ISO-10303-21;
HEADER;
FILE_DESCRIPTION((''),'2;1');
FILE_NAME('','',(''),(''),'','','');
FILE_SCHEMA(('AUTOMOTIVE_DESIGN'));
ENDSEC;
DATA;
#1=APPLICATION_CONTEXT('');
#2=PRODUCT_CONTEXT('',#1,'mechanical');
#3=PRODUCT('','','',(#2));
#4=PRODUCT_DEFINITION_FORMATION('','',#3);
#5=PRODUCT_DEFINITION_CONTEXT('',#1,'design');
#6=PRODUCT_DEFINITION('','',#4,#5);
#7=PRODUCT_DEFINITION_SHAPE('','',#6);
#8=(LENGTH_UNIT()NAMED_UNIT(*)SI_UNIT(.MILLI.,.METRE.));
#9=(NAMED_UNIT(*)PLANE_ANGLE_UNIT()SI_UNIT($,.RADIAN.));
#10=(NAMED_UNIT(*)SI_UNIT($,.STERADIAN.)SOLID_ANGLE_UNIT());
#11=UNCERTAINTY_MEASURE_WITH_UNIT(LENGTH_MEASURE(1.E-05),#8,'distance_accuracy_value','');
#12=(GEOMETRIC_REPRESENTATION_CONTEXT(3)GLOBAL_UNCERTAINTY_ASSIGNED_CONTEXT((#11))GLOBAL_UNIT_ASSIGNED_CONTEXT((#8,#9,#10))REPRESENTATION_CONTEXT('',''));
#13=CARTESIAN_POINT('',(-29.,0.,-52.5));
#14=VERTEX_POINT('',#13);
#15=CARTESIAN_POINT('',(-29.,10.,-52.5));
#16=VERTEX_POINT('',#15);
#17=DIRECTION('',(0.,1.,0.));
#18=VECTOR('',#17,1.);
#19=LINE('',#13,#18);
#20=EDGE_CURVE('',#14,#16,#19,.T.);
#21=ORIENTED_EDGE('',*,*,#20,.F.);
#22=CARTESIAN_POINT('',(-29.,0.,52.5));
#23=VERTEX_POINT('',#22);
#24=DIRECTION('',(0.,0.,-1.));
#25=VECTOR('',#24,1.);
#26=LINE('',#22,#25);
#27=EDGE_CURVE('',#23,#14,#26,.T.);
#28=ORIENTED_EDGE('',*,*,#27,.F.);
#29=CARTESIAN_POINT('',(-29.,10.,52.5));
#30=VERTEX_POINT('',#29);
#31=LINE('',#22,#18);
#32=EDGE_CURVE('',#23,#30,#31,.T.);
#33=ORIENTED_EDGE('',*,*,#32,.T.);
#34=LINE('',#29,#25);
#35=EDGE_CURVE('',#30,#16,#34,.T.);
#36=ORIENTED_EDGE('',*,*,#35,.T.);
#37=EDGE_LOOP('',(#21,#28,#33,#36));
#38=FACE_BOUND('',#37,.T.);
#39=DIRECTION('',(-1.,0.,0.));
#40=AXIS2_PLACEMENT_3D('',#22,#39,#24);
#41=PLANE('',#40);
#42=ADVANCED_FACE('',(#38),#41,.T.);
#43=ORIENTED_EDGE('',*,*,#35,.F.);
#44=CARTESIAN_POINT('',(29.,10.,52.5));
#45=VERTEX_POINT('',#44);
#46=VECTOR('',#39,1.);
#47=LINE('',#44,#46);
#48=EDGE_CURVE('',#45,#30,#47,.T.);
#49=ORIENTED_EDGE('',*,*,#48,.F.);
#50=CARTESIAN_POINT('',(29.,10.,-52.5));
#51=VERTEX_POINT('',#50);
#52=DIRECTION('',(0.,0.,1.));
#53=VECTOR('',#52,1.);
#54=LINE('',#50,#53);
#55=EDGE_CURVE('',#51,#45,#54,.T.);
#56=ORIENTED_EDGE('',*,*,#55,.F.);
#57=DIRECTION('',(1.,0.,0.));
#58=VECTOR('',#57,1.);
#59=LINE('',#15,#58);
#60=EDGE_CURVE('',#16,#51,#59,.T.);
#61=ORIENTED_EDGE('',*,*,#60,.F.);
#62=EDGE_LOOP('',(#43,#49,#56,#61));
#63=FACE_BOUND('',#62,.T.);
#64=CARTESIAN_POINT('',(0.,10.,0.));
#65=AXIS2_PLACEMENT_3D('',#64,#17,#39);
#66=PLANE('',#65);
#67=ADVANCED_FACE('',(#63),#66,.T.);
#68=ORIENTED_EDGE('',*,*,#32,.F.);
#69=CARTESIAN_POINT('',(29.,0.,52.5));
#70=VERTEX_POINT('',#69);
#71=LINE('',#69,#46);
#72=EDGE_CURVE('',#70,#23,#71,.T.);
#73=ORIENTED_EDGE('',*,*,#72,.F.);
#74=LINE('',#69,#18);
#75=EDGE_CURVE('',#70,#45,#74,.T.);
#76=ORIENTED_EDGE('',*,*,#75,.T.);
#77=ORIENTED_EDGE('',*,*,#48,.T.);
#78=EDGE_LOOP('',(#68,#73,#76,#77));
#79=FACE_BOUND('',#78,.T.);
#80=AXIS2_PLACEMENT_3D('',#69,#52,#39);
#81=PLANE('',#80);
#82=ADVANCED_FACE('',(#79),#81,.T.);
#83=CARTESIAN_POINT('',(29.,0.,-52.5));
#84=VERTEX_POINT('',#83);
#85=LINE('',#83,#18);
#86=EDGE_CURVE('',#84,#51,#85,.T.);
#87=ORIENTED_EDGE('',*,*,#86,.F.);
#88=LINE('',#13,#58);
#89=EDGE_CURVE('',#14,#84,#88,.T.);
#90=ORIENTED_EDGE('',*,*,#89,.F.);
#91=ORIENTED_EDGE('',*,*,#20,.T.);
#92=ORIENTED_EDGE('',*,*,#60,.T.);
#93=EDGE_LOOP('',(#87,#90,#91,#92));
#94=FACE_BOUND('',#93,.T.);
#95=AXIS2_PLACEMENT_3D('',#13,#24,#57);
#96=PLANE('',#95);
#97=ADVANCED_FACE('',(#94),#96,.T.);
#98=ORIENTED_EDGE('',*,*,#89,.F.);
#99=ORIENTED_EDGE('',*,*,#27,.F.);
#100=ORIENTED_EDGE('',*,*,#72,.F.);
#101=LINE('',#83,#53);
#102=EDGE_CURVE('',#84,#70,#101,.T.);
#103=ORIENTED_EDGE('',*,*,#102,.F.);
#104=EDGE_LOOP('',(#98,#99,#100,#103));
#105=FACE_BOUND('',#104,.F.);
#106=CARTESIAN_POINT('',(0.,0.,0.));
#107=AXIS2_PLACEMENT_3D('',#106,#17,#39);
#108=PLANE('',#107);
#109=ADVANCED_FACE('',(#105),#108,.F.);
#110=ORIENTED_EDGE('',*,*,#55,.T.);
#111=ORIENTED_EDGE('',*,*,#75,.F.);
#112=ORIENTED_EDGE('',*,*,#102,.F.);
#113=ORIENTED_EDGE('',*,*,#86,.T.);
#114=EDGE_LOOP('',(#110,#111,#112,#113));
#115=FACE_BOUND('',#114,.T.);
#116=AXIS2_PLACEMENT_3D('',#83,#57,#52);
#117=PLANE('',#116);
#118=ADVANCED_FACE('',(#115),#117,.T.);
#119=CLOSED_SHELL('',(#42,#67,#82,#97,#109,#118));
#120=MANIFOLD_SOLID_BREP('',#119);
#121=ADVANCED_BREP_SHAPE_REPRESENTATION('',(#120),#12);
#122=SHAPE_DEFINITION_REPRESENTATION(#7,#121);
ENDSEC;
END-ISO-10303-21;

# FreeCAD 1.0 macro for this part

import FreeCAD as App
import Part
import Sketcher
Q = App.Units.Quantity


def add_polygon(sketch, points):
    """Adds a closed chain of lines whose ends are joined by coincident constraints."""
    first, n = sketch.GeometryCount, len(points)
    for a, b in zip(points, points[1:] + points[:1]):
        sketch.addGeometry(Part.LineSegment(App.Vector(*a, 0), App.Vector(*b, 0)), False)
    for i in range(n):
        sketch.addConstraint(Sketcher.Constraint("Coincident", first + i, 2, first + (i + 1) % n, 1))

doc = App.newDocument("Part")
body = doc.addObject("PartDesign::Body", "Body")

sketch1 = body.newObject("Sketcher::SketchObject", "Sketch")
sketch1.AttachmentSupport = (doc.getObject("XZ_Plane"), [""])
sketch1.MapMode = "FlatFace"
add_polygon(sketch1, [(-29, 52), (29, 52), (29, -52), (-29, -52)])
sketch1.addConstraint([
    Sketcher.Constraint("Horizontal", 0),
    Sketcher.Constraint("Vertical", 1),
    Sketcher.Constraint("Horizontal", 2),
    Sketcher.Constraint("Vertical", 3),
    Sketcher.Constraint("Symmetric", 0, 2, 2, 2, -1, 1),
    Sketcher.Constraint("DistanceX", 0, 1, 0, 2, Q("58 mm")),
    Sketcher.Constraint("DistanceY", 1, 2, 1, 1, Q("105 mm")),
])
pad1 = body.newObject("PartDesign::Pad", "Pad")
pad1.Profile = sketch1
pad1.Length = 10
pad1.Reversed = True

doc.recompute()
